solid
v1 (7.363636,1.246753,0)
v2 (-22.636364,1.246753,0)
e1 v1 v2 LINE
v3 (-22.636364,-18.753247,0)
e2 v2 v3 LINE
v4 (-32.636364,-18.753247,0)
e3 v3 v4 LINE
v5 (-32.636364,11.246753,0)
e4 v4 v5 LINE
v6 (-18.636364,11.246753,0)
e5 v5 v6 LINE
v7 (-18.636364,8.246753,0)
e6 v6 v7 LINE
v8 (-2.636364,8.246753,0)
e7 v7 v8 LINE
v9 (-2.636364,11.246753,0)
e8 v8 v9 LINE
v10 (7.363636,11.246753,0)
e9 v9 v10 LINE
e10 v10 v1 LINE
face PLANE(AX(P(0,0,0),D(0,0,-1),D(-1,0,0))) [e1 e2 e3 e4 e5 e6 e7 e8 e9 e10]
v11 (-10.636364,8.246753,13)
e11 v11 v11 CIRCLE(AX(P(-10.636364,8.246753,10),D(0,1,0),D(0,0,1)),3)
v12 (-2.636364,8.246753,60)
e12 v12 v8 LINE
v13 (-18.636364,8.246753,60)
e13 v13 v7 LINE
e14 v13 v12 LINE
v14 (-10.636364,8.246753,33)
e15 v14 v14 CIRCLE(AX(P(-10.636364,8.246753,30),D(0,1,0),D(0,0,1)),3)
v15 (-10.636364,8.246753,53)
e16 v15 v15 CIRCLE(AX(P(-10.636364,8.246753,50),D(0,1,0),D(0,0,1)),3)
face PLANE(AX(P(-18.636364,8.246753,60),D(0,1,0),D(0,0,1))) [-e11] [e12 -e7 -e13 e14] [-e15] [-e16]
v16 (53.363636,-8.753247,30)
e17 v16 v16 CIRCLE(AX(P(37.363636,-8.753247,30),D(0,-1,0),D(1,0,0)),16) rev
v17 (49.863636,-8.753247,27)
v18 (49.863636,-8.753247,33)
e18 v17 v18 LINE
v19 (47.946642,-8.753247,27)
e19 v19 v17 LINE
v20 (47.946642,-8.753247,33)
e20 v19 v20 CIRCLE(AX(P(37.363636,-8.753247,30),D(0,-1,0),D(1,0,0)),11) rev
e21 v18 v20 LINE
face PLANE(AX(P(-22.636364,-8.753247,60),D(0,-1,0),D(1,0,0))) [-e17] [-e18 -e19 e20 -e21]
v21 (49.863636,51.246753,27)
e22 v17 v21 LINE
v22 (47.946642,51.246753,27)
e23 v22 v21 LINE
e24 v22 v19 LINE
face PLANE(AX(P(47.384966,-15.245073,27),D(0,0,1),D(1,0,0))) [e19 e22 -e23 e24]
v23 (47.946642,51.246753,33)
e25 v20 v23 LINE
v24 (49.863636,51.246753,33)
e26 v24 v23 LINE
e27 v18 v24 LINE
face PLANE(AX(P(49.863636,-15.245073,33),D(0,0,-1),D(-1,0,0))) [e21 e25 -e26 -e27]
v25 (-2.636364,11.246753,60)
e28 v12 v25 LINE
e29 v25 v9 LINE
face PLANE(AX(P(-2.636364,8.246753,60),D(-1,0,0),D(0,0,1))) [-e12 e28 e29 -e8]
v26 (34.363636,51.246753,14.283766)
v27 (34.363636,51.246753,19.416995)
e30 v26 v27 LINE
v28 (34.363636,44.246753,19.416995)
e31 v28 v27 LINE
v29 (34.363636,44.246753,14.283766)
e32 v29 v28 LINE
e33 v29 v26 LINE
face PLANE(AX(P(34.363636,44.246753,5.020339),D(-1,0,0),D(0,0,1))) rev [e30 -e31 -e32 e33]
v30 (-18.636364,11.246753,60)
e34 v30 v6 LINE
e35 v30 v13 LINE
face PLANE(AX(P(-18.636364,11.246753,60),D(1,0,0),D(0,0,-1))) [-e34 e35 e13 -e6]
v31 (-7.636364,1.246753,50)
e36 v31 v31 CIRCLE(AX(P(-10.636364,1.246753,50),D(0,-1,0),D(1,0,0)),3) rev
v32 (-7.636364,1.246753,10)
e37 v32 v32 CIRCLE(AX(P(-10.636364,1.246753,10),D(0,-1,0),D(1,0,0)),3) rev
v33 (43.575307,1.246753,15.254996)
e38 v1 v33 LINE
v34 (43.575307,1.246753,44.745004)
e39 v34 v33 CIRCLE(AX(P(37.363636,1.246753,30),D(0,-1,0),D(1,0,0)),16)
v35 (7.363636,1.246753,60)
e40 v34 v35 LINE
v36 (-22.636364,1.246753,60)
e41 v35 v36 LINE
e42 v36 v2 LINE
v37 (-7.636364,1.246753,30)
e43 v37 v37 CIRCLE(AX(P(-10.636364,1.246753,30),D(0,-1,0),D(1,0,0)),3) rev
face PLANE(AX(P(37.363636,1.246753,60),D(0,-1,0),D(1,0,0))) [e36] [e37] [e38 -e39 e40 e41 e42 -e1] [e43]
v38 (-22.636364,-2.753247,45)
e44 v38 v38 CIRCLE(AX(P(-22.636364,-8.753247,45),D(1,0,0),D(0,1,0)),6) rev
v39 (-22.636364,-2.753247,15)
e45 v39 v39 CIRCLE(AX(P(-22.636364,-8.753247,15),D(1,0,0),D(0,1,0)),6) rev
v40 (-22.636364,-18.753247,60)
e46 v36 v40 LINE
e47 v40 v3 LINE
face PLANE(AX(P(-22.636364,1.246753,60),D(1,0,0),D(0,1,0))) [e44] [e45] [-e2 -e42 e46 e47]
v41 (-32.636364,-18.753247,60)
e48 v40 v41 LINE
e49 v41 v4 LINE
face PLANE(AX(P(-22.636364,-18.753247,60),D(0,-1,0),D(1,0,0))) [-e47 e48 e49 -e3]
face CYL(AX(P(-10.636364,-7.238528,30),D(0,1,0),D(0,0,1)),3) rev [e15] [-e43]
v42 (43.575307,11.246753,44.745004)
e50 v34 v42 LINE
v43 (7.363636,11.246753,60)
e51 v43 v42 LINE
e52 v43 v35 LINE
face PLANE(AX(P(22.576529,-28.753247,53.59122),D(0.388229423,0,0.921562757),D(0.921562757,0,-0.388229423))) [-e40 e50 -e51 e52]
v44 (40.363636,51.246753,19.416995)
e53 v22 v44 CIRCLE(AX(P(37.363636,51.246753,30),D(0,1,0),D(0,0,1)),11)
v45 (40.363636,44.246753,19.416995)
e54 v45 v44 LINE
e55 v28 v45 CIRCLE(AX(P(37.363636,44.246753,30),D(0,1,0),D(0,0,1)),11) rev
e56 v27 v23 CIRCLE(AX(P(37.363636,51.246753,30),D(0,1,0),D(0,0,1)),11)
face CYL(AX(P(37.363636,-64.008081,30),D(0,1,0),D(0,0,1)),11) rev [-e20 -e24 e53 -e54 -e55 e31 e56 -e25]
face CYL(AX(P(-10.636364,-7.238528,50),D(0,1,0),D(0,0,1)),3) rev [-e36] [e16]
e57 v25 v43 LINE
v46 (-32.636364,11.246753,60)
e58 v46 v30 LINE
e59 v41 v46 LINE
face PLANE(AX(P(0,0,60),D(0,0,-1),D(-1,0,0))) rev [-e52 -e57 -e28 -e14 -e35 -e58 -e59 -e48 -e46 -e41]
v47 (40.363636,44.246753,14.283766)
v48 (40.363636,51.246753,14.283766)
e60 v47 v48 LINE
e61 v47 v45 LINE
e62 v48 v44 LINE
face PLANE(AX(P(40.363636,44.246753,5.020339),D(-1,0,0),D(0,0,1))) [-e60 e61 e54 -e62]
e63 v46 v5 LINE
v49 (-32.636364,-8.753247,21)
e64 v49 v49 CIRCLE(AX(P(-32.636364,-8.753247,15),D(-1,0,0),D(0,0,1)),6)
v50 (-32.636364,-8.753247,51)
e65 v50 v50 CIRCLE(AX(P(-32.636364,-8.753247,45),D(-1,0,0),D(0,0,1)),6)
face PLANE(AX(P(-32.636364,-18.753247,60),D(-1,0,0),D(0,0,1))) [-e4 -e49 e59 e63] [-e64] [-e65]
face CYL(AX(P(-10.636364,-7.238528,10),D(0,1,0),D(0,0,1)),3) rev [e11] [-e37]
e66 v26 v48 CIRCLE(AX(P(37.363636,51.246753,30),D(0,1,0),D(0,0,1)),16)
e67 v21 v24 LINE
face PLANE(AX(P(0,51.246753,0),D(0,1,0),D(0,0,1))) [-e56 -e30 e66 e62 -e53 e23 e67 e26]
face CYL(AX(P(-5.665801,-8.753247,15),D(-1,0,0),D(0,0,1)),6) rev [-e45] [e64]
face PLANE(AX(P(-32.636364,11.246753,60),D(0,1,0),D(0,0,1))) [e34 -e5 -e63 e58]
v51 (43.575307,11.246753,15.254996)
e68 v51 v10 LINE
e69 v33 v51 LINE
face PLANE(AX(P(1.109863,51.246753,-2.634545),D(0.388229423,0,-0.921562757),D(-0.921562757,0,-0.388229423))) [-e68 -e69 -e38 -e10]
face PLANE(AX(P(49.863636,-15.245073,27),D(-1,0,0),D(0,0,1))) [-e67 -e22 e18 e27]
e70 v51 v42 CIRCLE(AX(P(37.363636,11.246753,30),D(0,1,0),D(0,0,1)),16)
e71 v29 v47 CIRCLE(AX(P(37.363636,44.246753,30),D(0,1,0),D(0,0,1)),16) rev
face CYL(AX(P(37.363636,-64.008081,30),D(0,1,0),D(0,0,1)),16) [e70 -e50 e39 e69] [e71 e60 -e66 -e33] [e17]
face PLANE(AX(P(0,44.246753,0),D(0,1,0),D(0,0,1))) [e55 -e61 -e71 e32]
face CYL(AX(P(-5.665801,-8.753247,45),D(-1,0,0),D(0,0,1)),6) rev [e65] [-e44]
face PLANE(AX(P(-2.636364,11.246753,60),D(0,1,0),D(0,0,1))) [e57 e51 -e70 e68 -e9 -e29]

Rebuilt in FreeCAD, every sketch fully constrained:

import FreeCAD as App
import Part
import Sketcher
from FreeCAD import Vector


def add_polygon(sketch, points):
    """Adds a closed chain of lines whose ends are joined by coincident constraints."""
    first, n = sketch.GeometryCount, len(points)
    for a, b in zip(points, points[1:] + points[:1]):
        sketch.addGeometry(Part.LineSegment(App.Vector(*a, 0), App.Vector(*b, 0)), False)
    for i in range(n):
        sketch.addConstraint(Sketcher.Constraint("Coincident", first + i, 2, first + (i + 1) % n, 1))

doc = App.newDocument("Part")
params = doc.addObject("Spreadsheet::Sheet", "Params")
for row, (alias, value) in enumerate([
    ("sketch1_width", "10 mm"),
    ("sketch1_width2", "60 mm"),
    ("sketch1_width3", "40 mm"),
    ("sketch1_width4", "16 mm"),
    ("sketch1_height", "30 mm"),
    ("pad1_length", "60 mm"),
    ("sketch2_diameter", "12 mm"),
    ("pocket1_length", "10 mm"),
    ("sketch3_diameter", "6 mm"),
    ("pocket2_length", "7 mm"),
    ("sketch4_diameter", "32 mm"),
    ("sketch4_diameter2", "22 mm"),
    ("pad2_length", "40 mm"),
    ("pad2_length2", "20 mm"),
    ("sketch5_width", "30 mm"),
    ("pad3_length", "10 mm"),
    ("sketch7_diameter", "22 mm"),
    ("pocket4_length", "60 mm"),
    ("sketch8_height", "6 mm"),
    ("pocket5_length", "60 mm"),
    ("sketch9_width", "6 mm"),
    ("pocket6_length", "7 mm"),
], start=1):
    params.set(f"A{row}", alias)
    params.set(f"B{row}", "=" + value)
    params.setAlias(f"B{row}", alias)

body = doc.addObject("PartDesign::Body", "Body")

sketch1 = body.newObject("Sketcher::SketchObject", "Sketch")
sketch1.AttachmentSupport = (doc.getObject("XY_Plane"), [""])
sketch1.MapMode = "FlatFace"
add_polygon(sketch1, [(-32.6, 11.2), (-32.6, -18.8), (-22.6, -18.8), (-22.6, 1.2), (37.4, 1.2), (37.4, 11.2), (-2.6, 11.2), (-2.6, 8.2), (-18.6, 8.2), (-18.6, 11.2)])
sketch1.addConstraint(Sketcher.Constraint("Vertical", 0))
sketch1.addConstraint(Sketcher.Constraint("Horizontal", 1))
sketch1.addConstraint(Sketcher.Constraint("Vertical", 2))
sketch1.addConstraint(Sketcher.Constraint("Horizontal", 3))
sketch1.addConstraint(Sketcher.Constraint("Vertical", 4))
sketch1.addConstraint(Sketcher.Constraint("Horizontal", 5))
sketch1.addConstraint(Sketcher.Constraint("Vertical", 6))
sketch1.addConstraint(Sketcher.Constraint("Horizontal", 7))
sketch1.addConstraint(Sketcher.Constraint("Vertical", 8))
sketch1.addConstraint(Sketcher.Constraint("Horizontal", 9))
sketch1.addConstraint(Sketcher.Constraint("Horizontal", 5, 2, 8, 2))
sketch1.addConstraint(Sketcher.Constraint("Equal", 1, 4))
sketch1.addConstraint(Sketcher.Constraint("DistanceX", 1, 1, 1, 2, 10.0))
sketch1.addConstraint(Sketcher.Constraint("DistanceX", 3, 1, 3, 2, 60.0))
sketch1.addConstraint(Sketcher.Constraint("DistanceX", 5, 2, 5, 1, 40.0))
sketch1.addConstraint(Sketcher.Constraint("DistanceX", 7, 2, 7, 1, 16.0))
sketch1.addConstraint(Sketcher.Constraint("DistanceY", 0, 2, 0, 1, 30.0))
sketch1.addConstraint(Sketcher.Constraint("DistanceY", 6, 2, 6, 1, 3.0))
sketch1.addConstraint(Sketcher.Constraint("DistanceX", 0, 2, -1, 1, 32.636364))
sketch1.addConstraint(Sketcher.Constraint("DistanceY", 0, 2, -1, 1, 18.753247))
sketch1.setExpression("Constraints[22]", "Params.sketch1_width")
sketch1.setExpression("Constraints[23]", "Params.sketch1_width2")
sketch1.setExpression("Constraints[24]", "Params.sketch1_width3")
sketch1.setExpression("Constraints[25]", "Params.sketch1_width4")
sketch1.setExpression("Constraints[26]", "Params.sketch1_height")
pad1 = body.newObject("PartDesign::Pad", "Pad")
pad1.Profile = sketch1
pad1.setExpression("Length", "Params.pad1_length")

sketch2 = body.newObject("Sketcher::SketchObject", "Sketch001")
sketch2.AttachmentSupport = (doc.getObject("YZ_Plane"), [""])
sketch2.MapMode = "FlatFace"
sketch2.AttachmentOffset = App.Placement(Vector(0, 0, -32.636364), App.Rotation())
sketch2.addGeometry(Part.Circle(Vector(-9, 45, 0), Vector(0, 0, 1), 6), False)
sketch2.addGeometry(Part.Circle(Vector(-9, 15, 0), Vector(0, 0, 1), 6), False)
sketch2.addConstraint(Sketcher.Constraint("Equal", 0, 1))
sketch2.addConstraint(Sketcher.Constraint("Vertical", 0, 3, 1, 3))
sketch2.addConstraint(Sketcher.Constraint("Diameter", 0, 12.0))
sketch2.addConstraint(Sketcher.Constraint("DistanceY", -1, 1, 0, 3, 45.0))
sketch2.addConstraint(Sketcher.Constraint("DistanceY", -1, 1, 1, 3, 15.0))
sketch2.addConstraint(Sketcher.Constraint("DistanceX", 0, 3, -1, 1, 8.753247))
sketch2.setExpression("Constraints[2]", "Params.sketch2_diameter")
pocket1 = body.newObject("PartDesign::Pocket", "Pocket")
pocket1.Profile = sketch2
pocket1.setExpression("Length", "Params.pocket1_length")
pocket1.Reversed = True

sketch3 = body.newObject("Sketcher::SketchObject", "Sketch002")
sketch3.AttachmentSupport = (doc.getObject("XZ_Plane"), [""])
sketch3.MapMode = "FlatFace"
sketch3.AttachmentOffset = App.Placement(Vector(0, 0, -8.246753), App.Rotation())
sketch3.addGeometry(Part.Circle(Vector(-10.6, 50, 0), Vector(0, 0, 1), 3), False)
sketch3.addGeometry(Part.Circle(Vector(-10.6, 10, 0), Vector(0, 0, 1), 3), False)
sketch3.addGeometry(Part.Circle(Vector(-10.6, 30, 0), Vector(0, 0, 1), 3), False)
sketch3.addConstraint(Sketcher.Constraint("Equal", 0, 1))
sketch3.addConstraint(Sketcher.Constraint("Equal", 1, 2))
sketch3.addConstraint(Sketcher.Constraint("Vertical", 0, 3, 1, 3))
sketch3.addConstraint(Sketcher.Constraint("Vertical", 1, 3, 2, 3))
sketch3.addConstraint(Sketcher.Constraint("Diameter", 0, 6.0))
sketch3.addConstraint(Sketcher.Constraint("DistanceY", -1, 1, 0, 3, 50.0))
sketch3.addConstraint(Sketcher.Constraint("DistanceY", -1, 1, 1, 3, 10.0))
sketch3.addConstraint(Sketcher.Constraint("DistanceY", -1, 1, 2, 3, 30.0))
sketch3.addConstraint(Sketcher.Constraint("DistanceX", 0, 3, -1, 1, 10.636364))
sketch3.setExpression("Constraints[4]", "Params.sketch3_diameter")
pocket2 = body.newObject("PartDesign::Pocket", "Pocket001")
pocket2.Profile = sketch3
pocket2.setExpression("Length", "Params.pocket2_length")
pocket2.Reversed = True

sketch4 = body.newObject("Sketcher::SketchObject", "Sketch003")
sketch4.AttachmentSupport = (doc.getObject("XZ_Plane"), [""])
sketch4.MapMode = "FlatFace"
sketch4.AttachmentOffset = App.Placement(Vector(0, 0, -11.246753), App.Rotation())
sketch4.addGeometry(Part.Circle(Vector(37, 30, 0), Vector(0, 0, 1), 16), False)
sketch4.addGeometry(Part.Circle(Vector(37, 30, 0), Vector(0, 0, 1), 11), False)
sketch4.addConstraint(Sketcher.Constraint("Coincident", 1, 3, 0, 3))
sketch4.addConstraint(Sketcher.Constraint("Diameter", 0, 32.0))
sketch4.addConstraint(Sketcher.Constraint("Diameter", 1, 22.0))
sketch4.addConstraint(Sketcher.Constraint("DistanceY", -1, 1, 0, 3, 30.0))
sketch4.addConstraint(Sketcher.Constraint("DistanceX", -1, 1, 0, 3, 37.363636))
sketch4.setExpression("Constraints[1]", "Params.sketch4_diameter")
sketch4.setExpression("Constraints[2]", "Params.sketch4_diameter2")
pad2 = body.newObject("PartDesign::Pad", "Pad001")
pad2.Profile = sketch4
pad2.Type = "TwoLengths"
pad2.setExpression("Length", "Params.pad2_length")
pad2.setExpression("Length2", "Params.pad2_length2")
pad2.Reversed = True

sketch5 = body.newObject("Sketcher::SketchObject", "Sketch004")
sketch5.AttachmentSupport = (doc.getObject("XZ_Plane"), [""])
sketch5.MapMode = "FlatFace"
sketch5.AttachmentOffset = App.Placement(Vector(0, 0, -11.246753), App.Rotation())
add_polygon(sketch5, [(7, 0), (37, 13), (37, 0)])
add_polygon(sketch5, [(37, 47), (7, 60), (37, 60)])
sketch5.addConstraint(Sketcher.Constraint("Vertical", 1))
sketch5.addConstraint(Sketcher.Constraint("Horizontal", 2))
sketch5.addConstraint(Sketcher.Constraint("Horizontal", 4))
sketch5.addConstraint(Sketcher.Constraint("Vertical", 5))
sketch5.addConstraint(Sketcher.Constraint("PointOnObject", 1, 2, -1))
sketch5.addConstraint(Sketcher.Constraint("Vertical", 2, 2, 3, 2))
sketch5.addConstraint(Sketcher.Constraint("Vertical", 1, 2, 4, 2))
sketch5.addConstraint(Sketcher.Constraint("Equal", 1, 5))
sketch5.addConstraint(Sketcher.Constraint("DistanceX", 2, 2, 2, 1, 30.0))
sketch5.addConstraint(Sketcher.Constraint("DistanceY", -1, 1, 3, 2, 60.0))
sketch5.addConstraint(Sketcher.Constraint("Distance", 0, 32.553399))
sketch5.addConstraint(Sketcher.Constraint("DistanceX", -1, 1, 0, 2, 37.363636))
sketch5.setExpression("Constraints[14]", "Params.sketch5_width")
pocket3 = body.newObject("PartDesign::Pocket", "Pocket002")
pocket3.Profile = sketch5
pocket3.Type = "ThroughAll"
pocket3.Midplane = True

sketch6 = body.newObject("Sketcher::SketchObject", "Sketch005")
sketch6.AttachmentSupport = (doc.getObject("XZ_Plane"), [""])
sketch6.MapMode = "FlatFace"
sketch6.AttachmentOffset = App.Placement(Vector(0, 0, -11.246753), App.Rotation())
add_polygon(sketch6, [(44, 15), (37, 13), (37, 47), (44, 45)])
sketch6.addConstraint(Sketcher.Constraint("Vertical", 1))
sketch6.addConstraint(Sketcher.Constraint("Vertical", 3))
sketch6.addConstraint(Sketcher.Constraint("Equal", 0, 2))
sketch6.addConstraint(Sketcher.Constraint("DistanceY", 3, 2, 3, 1, 29.490008))
sketch6.addConstraint(Sketcher.Constraint("DistanceY", 1, 1, 1, 2, 34.723625))
sketch6.addConstraint(Sketcher.Constraint("DistanceX", 1, 2, 2, 2, 6.211671))
sketch6.addConstraint(Sketcher.Constraint("DistanceX", -1, 1, 0, 2, 37.363636))
sketch6.addConstraint(Sketcher.Constraint("DistanceY", -1, 1, 0, 2, 12.638187))
pad3 = body.newObject("PartDesign::Pad", "Pad002")
pad3.Profile = sketch6
pad3.setExpression("Length", "Params.pad3_length")

sketch7 = body.newObject("Sketcher::SketchObject", "Sketch006")
sketch7.AttachmentSupport = (doc.getObject("XZ_Plane"), [""])
sketch7.MapMode = "FlatFace"
sketch7.AttachmentOffset = App.Placement(Vector(0, 0, 8.753247), App.Rotation())
sketch7.addGeometry(Part.Circle(Vector(37, 30, 0), Vector(0, 0, 1), 11), False)
sketch7.addConstraint(Sketcher.Constraint("Diameter", 0, 22.0))
sketch7.addConstraint(Sketcher.Constraint("DistanceY", -1, 1, 0, 3, 30.0))
sketch7.addConstraint(Sketcher.Constraint("DistanceX", -1, 1, 0, 3, 37.363636))
sketch7.setExpression("Constraints[0]", "Params.sketch7_diameter")
pocket4 = body.newObject("PartDesign::Pocket", "Pocket003")
pocket4.Profile = sketch7
pocket4.setExpression("Length", "Params.pocket4_length")

sketch8 = body.newObject("Sketcher::SketchObject", "Sketch007")
sketch8.AttachmentSupport = (doc.getObject("XZ_Plane"), [""])
sketch8.MapMode = "FlatFace"
sketch8.AttachmentOffset = App.Placement(Vector(0, 0, -51.246753), App.Rotation())
add_polygon(sketch8, [(49.9, 33), (49.9, 27), (47.4, 27), (47.4, 33)])
sketch8.addConstraint(Sketcher.Constraint("Vertical", 0))
sketch8.addConstraint(Sketcher.Constraint("Horizontal", 1))
sketch8.addConstraint(Sketcher.Constraint("Vertical", 2))
sketch8.addConstraint(Sketcher.Constraint("Horizontal", 3))
sketch8.addConstraint(Sketcher.Constraint("DistanceY", 0, 2, 0, 1, 6.0))
sketch8.addConstraint(Sketcher.Constraint("DistanceY", -1, 1, 0, 2, 27.0))
sketch8.addConstraint(Sketcher.Constraint("DistanceX", 1, 2, 1, 1, 2.47867))
sketch8.addConstraint(Sketcher.Constraint("DistanceX", -1, 1, 0, 2, 49.863636))
sketch8.setExpression("Constraints[8]", "Params.sketch8_height")
pocket5 = body.newObject("PartDesign::Pocket", "Pocket004")
pocket5.Profile = sketch8
pocket5.setExpression("Length", "Params.pocket5_length")
pocket5.Reversed = True

sketch9 = body.newObject("Sketcher::SketchObject", "Sketch008")
sketch9.AttachmentSupport = (doc.getObject("XZ_Plane"), [""])
sketch9.MapMode = "FlatFace"
sketch9.AttachmentOffset = App.Placement(Vector(0, 0, -51.246753), App.Rotation())
add_polygon(sketch9, [(34, 5), (34, 30), (40, 30), (40, 5)])
sketch9.addConstraint(Sketcher.Constraint("Vertical", 0))
sketch9.addConstraint(Sketcher.Constraint("Horizontal", 1))
sketch9.addConstraint(Sketcher.Constraint("Vertical", 2))
sketch9.addConstraint(Sketcher.Constraint("Horizontal", 3))
sketch9.addConstraint(Sketcher.Constraint("DistanceX", 1, 1, 1, 2, 6.0))
sketch9.addConstraint(Sketcher.Constraint("DistanceY", -1, 1, 0, 2, 30.0))
sketch9.addConstraint(Sketcher.Constraint("DistanceY", 0, 1, 0, 2, 24.979661))
sketch9.addConstraint(Sketcher.Constraint("DistanceX", -1, 1, 0, 2, 34.363636))
sketch9.setExpression("Constraints[8]", "Params.sketch9_width")
pocket6 = body.newObject("PartDesign::Pocket", "Pocket005")
pocket6.Profile = sketch9
pocket6.setExpression("Length", "Params.pocket6_length")
pocket6.Reversed = True

doc.recompute()
